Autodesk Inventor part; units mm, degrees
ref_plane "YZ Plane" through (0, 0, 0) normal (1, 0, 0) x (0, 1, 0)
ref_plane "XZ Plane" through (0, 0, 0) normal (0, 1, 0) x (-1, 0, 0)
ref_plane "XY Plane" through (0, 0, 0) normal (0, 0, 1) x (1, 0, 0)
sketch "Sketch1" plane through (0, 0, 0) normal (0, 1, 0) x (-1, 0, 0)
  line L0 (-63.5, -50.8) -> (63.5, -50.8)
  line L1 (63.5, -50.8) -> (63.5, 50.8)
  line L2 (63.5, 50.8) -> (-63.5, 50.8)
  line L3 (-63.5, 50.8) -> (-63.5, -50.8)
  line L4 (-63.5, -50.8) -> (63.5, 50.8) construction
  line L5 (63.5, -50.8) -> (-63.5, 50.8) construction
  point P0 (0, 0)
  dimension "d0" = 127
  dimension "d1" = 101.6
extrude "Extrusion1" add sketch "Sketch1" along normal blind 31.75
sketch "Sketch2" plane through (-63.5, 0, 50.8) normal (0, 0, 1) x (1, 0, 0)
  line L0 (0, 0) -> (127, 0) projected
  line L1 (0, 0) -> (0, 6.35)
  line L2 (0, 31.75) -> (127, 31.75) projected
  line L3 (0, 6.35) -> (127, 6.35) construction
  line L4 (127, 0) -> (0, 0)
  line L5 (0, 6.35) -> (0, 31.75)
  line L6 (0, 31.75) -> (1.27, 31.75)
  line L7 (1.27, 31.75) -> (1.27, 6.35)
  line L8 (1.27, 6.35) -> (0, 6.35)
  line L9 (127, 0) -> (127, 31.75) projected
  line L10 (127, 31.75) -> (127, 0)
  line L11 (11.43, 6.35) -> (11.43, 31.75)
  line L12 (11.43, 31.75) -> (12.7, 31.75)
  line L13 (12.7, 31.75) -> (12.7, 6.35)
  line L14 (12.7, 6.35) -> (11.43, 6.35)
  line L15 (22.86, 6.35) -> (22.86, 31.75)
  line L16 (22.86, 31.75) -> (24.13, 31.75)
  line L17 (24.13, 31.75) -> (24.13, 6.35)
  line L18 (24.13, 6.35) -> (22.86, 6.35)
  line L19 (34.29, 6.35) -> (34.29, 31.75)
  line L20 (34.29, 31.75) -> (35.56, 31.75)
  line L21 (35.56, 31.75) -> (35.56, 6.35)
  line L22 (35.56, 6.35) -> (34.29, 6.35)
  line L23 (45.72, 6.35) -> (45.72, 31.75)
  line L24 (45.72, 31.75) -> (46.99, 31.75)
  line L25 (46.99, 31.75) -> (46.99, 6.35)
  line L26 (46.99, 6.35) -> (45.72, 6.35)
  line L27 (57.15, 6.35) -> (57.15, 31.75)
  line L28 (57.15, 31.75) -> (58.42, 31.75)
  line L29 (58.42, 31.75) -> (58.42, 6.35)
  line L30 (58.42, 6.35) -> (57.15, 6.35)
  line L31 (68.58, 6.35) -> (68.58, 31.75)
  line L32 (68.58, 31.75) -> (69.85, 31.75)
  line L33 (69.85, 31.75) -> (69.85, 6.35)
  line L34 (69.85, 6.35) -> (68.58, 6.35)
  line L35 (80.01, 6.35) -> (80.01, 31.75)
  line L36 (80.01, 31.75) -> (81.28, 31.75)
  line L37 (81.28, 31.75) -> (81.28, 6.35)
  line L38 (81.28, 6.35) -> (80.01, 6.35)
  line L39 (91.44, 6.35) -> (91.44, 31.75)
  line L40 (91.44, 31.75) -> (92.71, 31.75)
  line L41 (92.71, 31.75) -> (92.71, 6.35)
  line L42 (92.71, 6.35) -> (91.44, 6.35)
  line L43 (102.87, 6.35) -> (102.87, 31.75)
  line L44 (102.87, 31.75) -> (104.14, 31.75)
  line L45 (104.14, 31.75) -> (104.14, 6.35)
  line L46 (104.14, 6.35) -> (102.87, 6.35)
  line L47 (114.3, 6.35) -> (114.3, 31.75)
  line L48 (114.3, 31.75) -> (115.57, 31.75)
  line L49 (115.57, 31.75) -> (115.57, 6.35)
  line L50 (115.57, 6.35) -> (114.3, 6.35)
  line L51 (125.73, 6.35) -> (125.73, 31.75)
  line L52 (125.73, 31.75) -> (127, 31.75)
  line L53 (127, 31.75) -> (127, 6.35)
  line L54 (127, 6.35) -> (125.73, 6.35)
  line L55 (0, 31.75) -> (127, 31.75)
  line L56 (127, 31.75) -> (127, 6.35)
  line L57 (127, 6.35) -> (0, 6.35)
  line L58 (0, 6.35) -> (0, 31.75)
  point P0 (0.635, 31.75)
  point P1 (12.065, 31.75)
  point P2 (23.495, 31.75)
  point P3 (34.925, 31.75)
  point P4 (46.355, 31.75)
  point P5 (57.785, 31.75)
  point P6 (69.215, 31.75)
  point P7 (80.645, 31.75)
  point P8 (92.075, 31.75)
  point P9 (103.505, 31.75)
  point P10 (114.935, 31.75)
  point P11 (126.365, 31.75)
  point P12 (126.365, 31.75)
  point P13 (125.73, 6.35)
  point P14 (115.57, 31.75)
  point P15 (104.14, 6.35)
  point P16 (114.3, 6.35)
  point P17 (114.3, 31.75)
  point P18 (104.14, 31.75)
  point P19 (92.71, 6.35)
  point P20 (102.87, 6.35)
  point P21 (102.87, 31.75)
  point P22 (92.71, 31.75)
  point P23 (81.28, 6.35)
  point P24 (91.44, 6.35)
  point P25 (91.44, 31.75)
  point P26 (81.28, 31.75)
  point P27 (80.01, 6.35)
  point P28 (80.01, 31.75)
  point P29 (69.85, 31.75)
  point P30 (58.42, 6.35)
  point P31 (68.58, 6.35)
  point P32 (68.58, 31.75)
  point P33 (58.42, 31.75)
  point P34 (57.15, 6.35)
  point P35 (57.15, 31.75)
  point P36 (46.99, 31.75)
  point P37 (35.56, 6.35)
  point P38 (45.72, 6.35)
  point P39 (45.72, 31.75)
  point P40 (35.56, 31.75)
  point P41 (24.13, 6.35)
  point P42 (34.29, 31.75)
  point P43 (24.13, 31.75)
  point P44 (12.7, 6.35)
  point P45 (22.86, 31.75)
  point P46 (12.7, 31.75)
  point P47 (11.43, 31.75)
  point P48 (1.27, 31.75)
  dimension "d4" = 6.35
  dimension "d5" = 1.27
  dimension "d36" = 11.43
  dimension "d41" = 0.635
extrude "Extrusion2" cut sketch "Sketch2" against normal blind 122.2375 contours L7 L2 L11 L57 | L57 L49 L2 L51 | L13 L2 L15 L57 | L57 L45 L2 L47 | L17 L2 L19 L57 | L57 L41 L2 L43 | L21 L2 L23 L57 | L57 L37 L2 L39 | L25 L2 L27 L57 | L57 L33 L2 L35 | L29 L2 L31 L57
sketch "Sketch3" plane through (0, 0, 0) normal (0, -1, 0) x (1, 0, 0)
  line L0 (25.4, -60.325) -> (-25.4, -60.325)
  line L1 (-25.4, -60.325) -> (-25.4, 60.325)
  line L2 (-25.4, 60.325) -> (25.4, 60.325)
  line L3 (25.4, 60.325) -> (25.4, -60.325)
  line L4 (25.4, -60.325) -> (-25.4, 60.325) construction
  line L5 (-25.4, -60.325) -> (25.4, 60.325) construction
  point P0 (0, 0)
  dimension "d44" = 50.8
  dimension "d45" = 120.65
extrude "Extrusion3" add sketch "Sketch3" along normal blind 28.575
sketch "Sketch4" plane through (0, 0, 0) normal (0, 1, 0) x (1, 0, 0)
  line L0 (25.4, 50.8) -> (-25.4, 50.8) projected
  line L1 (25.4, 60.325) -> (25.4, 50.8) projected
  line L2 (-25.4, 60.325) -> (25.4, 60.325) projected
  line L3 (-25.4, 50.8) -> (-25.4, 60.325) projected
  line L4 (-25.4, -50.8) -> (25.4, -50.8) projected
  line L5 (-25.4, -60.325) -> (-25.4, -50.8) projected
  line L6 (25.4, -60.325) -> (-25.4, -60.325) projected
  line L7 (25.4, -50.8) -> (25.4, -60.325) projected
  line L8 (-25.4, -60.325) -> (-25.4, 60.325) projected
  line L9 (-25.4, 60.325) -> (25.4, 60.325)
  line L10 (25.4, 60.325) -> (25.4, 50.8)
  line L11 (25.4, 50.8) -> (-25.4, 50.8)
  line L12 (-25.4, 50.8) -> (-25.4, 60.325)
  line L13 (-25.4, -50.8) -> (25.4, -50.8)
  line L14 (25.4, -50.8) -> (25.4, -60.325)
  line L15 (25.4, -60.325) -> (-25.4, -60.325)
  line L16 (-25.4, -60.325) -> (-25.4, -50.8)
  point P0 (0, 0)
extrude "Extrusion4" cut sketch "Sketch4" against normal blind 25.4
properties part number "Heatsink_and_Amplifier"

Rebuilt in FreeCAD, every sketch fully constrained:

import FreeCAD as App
import Part
import Sketcher
from FreeCAD import Vector
Q = App.Units.Quantity


def add_polygon(sketch, points):
    """Adds a closed chain of lines whose ends are joined by coincident constraints."""
    first, n = sketch.GeometryCount, len(points)
    for a, b in zip(points, points[1:] + points[:1]):
        sketch.addGeometry(Part.LineSegment(App.Vector(*a, 0), App.Vector(*b, 0)), False)
    for i in range(n):
        sketch.addConstraint(Sketcher.Constraint("Coincident", first + i, 2, first + (i + 1) % n, 1))

doc = App.newDocument("Part")
params = doc.addObject("Spreadsheet::Sheet", "Params")
for row, (alias, value) in enumerate([
    ("sketch1_width", "5 in"),
    ("sketch1_height", "4 in"),
    ("pad1_length", "1.25 in"),
    ("sketch2_height", "1 in"),
    ("pocket1_length", "4.8125 in"),
    ("sketch3_width", "2 in"),
    ("sketch3_height", "4.75 in"),
    ("pad2_length", "1.125 in"),
    ("sketch4_width", "2 in"),
    ("sketch4_height", "0.375 in"),
    ("pocket2_length", "1 in"),
], start=1):
    params.set(f"A{row}", alias)
    params.set(f"B{row}", "=" + value)
    params.setAlias(f"B{row}", alias)

body = doc.addObject("PartDesign::Body", "Body")

# Sketch on XZ plane
sketch1 = doc.addObject("Sketcher::SketchObject", "Sketch")
body.addObject(sketch1)
sketch1.AttachmentSupport = (doc.XZ_Plane, [""])
sketch1.MapMode = "FlatFace"
add_polygon(sketch1, [(64, 51), (64, -51), (-64, -51), (-64, 51)])  # lines 0-3
sketch1.addConstraint([
    Sketcher.Constraint("Vertical", 0),
    Sketcher.Constraint("Horizontal", 1),
    Sketcher.Constraint("Vertical", 2),
    Sketcher.Constraint("Horizontal", 3),
    Sketcher.Constraint("Symmetric", 0, 2, 2, 2, -1, 1),
    Sketcher.Constraint("DistanceX", 1, 2, 1, 1, Q("5 in")),
    Sketcher.Constraint("DistanceY", 0, 2, 0, 1, Q("4 in")),
])
sketch1.setExpression("Constraints[9]", "Params.sketch1_width")
sketch1.setExpression("Constraints[10]", "Params.sketch1_height")
pad1 = doc.addObject("PartDesign::Pad", "Pad")
body.addObject(pad1)
pad1.Profile = sketch1
pad1.setExpression("Length", "Params.pad1_length")
pad1.Reversed = True

# Sketch on XY plane
sketch2 = doc.addObject("Sketcher::SketchObject", "Sketch001")
body.addObject(sketch2)
sketch2.AttachmentSupport = (doc.XY_Plane, [""])
sketch2.MapMode = "FlatFace"
sketch2.AttachmentOffset = App.Placement(Vector(0, 0, 2 * 25.4), App.Rotation())
add_polygon(sketch2, [(-62, 32), (-62, 6), (-52, 6), (-52, 32)])  # lines 0-3
add_polygon(sketch2, [(52, 6), (62, 6), (62, 32), (52, 32)])  # lines 4-7
add_polygon(sketch2, [(-51, 32), (-51, 6), (-41, 6), (-41, 32)])  # lines 8-11
add_polygon(sketch2, [(41, 6), (51, 6), (51, 32), (41, 32)])  # lines 12-15
add_polygon(sketch2, [(-39, 32), (-39, 6), (-29, 6), (-29, 32)])  # lines 16-19
add_polygon(sketch2, [(29, 6), (39, 6), (39, 32), (29, 32)])  # lines 20-23
add_polygon(sketch2, [(-28, 32), (-28, 6), (-18, 6), (-18, 32)])  # lines 24-27
add_polygon(sketch2, [(18, 6), (28, 6), (28, 32), (18, 32)])  # lines 28-31
add_polygon(sketch2, [(-17, 32), (-17, 6), (-6, 6), (-6, 32)])  # lines 32-35
add_polygon(sketch2, [(6, 6), (17, 6), (17, 32), (6, 32)])  # lines 36-39
add_polygon(sketch2, [(-5, 32), (-5, 6), (5, 6), (5, 32)])  # lines 40-43
sketch2.addConstraint([
    Sketcher.Constraint("Vertical", 0),
    Sketcher.Constraint("Horizontal", 1),
    Sketcher.Constraint("Vertical", 2),
    Sketcher.Constraint("Horizontal", 3),
    Sketcher.Constraint("Horizontal", 4),
    Sketcher.Constraint("Vertical", 5),
    Sketcher.Constraint("Horizontal", 6),
    Sketcher.Constraint("Vertical", 7),
    Sketcher.Constraint("Vertical", 8),
    Sketcher.Constraint("Horizontal", 9),
    Sketcher.Constraint("Vertical", 10),
    Sketcher.Constraint("Horizontal", 11),
    Sketcher.Constraint("Horizontal", 12),
    Sketcher.Constraint("Vertical", 13),
    Sketcher.Constraint("Horizontal", 14),
    Sketcher.Constraint("Vertical", 15),
    Sketcher.Constraint("Vertical", 16),
    Sketcher.Constraint("Horizontal", 17),
    Sketcher.Constraint("Vertical", 18),
    Sketcher.Constraint("Horizontal", 19),
    Sketcher.Constraint("Horizontal", 20),
    Sketcher.Constraint("Vertical", 21),
    Sketcher.Constraint("Horizontal", 22),
    Sketcher.Constraint("Vertical", 23),
    Sketcher.Constraint("Vertical", 24),
    Sketcher.Constraint("Horizontal", 25),
    Sketcher.Constraint("Vertical", 26),
    Sketcher.Constraint("Horizontal", 27),
    Sketcher.Constraint("Horizontal", 28),
    Sketcher.Constraint("Vertical", 29),
    Sketcher.Constraint("Horizontal", 30),
    Sketcher.Constraint("Vertical", 31),
    Sketcher.Constraint("Vertical", 32),
    Sketcher.Constraint("Horizontal", 33),
    Sketcher.Constraint("Vertical", 34),
    Sketcher.Constraint("Horizontal", 35),
    Sketcher.Constraint("Horizontal", 36),
    Sketcher.Constraint("Vertical", 37),
    Sketcher.Constraint("Horizontal", 38),
    Sketcher.Constraint("Vertical", 39),
    Sketcher.Constraint("Vertical", 40),
    Sketcher.Constraint("Horizontal", 41),
    Sketcher.Constraint("Vertical", 42),
    Sketcher.Constraint("Horizontal", 43),
    Sketcher.Constraint("Symmetric", 0, 2, 4, 2, -2),
    Sketcher.Constraint("Symmetric", 2, 2, 6, 2, -2),
    Sketcher.Constraint("Symmetric", 8, 2, 12, 2, -2),
    Sketcher.Constraint("Symmetric", 10, 2, 14, 2, -2),
    Sketcher.Constraint("Symmetric", 16, 2, 20, 2, -2),
    Sketcher.Constraint("Symmetric", 18, 2, 22, 2, -2),
    Sketcher.Constraint("Symmetric", 24, 2, 28, 2, -2),
    Sketcher.Constraint("Symmetric", 26, 2, 30, 2, -2),
    Sketcher.Constraint("Symmetric", 32, 2, 36, 2, -2),
    Sketcher.Constraint("Symmetric", 34, 2, 38, 2, -2),
    Sketcher.Constraint("Horizontal", 7, 2, 8, 2),
    Sketcher.Constraint("Horizontal", 6, 2, 10, 2),
    Sketcher.Constraint("Horizontal", 15, 2, 16, 2),
    Sketcher.Constraint("Horizontal", 14, 2, 18, 2),
    Sketcher.Constraint("Horizontal", 23, 2, 24, 2),
    Sketcher.Constraint("Horizontal", 22, 2, 26, 2),
    Sketcher.Constraint("Horizontal", 31, 2, 32, 2),
    Sketcher.Constraint("Horizontal", 30, 2, 34, 2),
    Sketcher.Constraint("Horizontal", 39, 2, 40, 2),
    Sketcher.Constraint("Horizontal", 38, 2, 42, 2),
    Sketcher.Constraint("Equal", 6, 9),
    Sketcher.Constraint("Equal", 14, 17),
    Sketcher.Constraint("Equal", 22, 25),
    Sketcher.Constraint("Equal", 30, 33),
    Sketcher.Constraint("Equal", 38, 41),
    Sketcher.Constraint("DistanceY", 0, 2, 0, 1, Q("1 in")),
    Sketcher.Constraint("DistanceY", -1, 1, 0, 2, Q("0.25 in")),
    Sketcher.Constraint("DistanceX", 33, 2, -1, 1, Q("0.25 in")),
    Sketcher.Constraint("DistanceX", 1, 2, 8, 2, Q("0.05 in")),
    Sketcher.Constraint("DistanceX", 0, 2, 8, 2, Q("0.45 in")),
    Sketcher.Constraint("DistanceX", 9, 2, 16, 2, Q("0.05 in")),
    Sketcher.Constraint("DistanceX", 17, 2, 24, 2, Q("0.05 in")),
    Sketcher.Constraint("DistanceX", 25, 2, 32, 2, Q("0.05 in")),
    Sketcher.Constraint("DistanceX", 33, 2, 40, 2, Q("0.05 in")),
])
sketch2.setExpression("Constraints[113]", "Params.sketch2_height")
pocket1 = doc.addObject("PartDesign::Pocket", "Pocket")
body.addObject(pocket1)
pocket1.Profile = sketch2
pocket1.setExpression("Length", "Params.pocket1_length")

# Sketch on XZ plane
sketch3 = doc.addObject("Sketcher::SketchObject", "Sketch002")
body.addObject(sketch3)
sketch3.AttachmentSupport = (doc.XZ_Plane, [""])
sketch3.MapMode = "FlatFace"
add_polygon(sketch3, [(-25, -60), (25, -60), (25, 60), (-25, 60)])  # lines 0-3
sketch3.addConstraint([
    Sketcher.Constraint("Horizontal", 0),
    Sketcher.Constraint("Vertical", 1),
    Sketcher.Constraint("Horizontal", 2),
    Sketcher.Constraint("Vertical", 3),
    Sketcher.Constraint("Symmetric", 0, 2, 2, 2, -1, 1),
    Sketcher.Constraint("DistanceX", 0, 1, 0, 2, Q("2 in")),
    Sketcher.Constraint("DistanceY", 1, 1, 1, 2, Q("4.75 in")),
])
sketch3.setExpression("Constraints[9]", "Params.sketch3_width")
sketch3.setExpression("Constraints[10]", "Params.sketch3_height")
pad2 = doc.addObject("PartDesign::Pad", "Pad001")
body.addObject(pad2)
pad2.Profile = sketch3
pad2.setExpression("Length", "Params.pad2_length")

# Sketch on XZ plane
sketch4 = doc.addObject("Sketcher::SketchObject", "Sketch003")
body.addObject(sketch4)
sketch4.AttachmentSupport = (doc.XZ_Plane, [""])
sketch4.MapMode = "FlatFace"
add_polygon(sketch4, [(25, 51), (-25, 51), (-25, 60), (25, 60)])  # lines 0-3
add_polygon(sketch4, [(-25, -51), (25, -51), (25, -60), (-25, -60)])  # lines 4-7
sketch4.addConstraint([
    Sketcher.Constraint("Horizontal", 0),
    Sketcher.Constraint("Vertical", 1),
    Sketcher.Constraint("Horizontal", 2),
    Sketcher.Constraint("Vertical", 3),
    Sketcher.Constraint("Horizontal", 4),
    Sketcher.Constraint("Vertical", 5),
    Sketcher.Constraint("Horizontal", 6),
    Sketcher.Constraint("Vertical", 7),
    Sketcher.Constraint("Symmetric", 0, 2, 4, 2, -1, 1),
    Sketcher.Constraint("Symmetric", 2, 2, 6, 2, -1, 1),
    Sketcher.Constraint("Vertical", 3, 2, 4, 2),
    Sketcher.Constraint("DistanceX", 0, 2, 0, 1, Q("2 in")),
    Sketcher.Constraint("DistanceY", -1, 1, 0, 2, Q("2 in")),
    Sketcher.Constraint("DistanceY", 1, 1, 1, 2, Q("0.375 in")),
])
sketch4.setExpression("Constraints[19]", "Params.sketch4_width")
sketch4.setExpression("Constraints[21]", "Params.sketch4_height")
pocket2 = doc.addObject("PartDesign::Pocket", "Pocket001")
body.addObject(pocket2)
pocket2.Profile = sketch4
pocket2.setExpression("Length", "Params.pocket2_length")
pocket2.Reversed = True

doc.recompute()
